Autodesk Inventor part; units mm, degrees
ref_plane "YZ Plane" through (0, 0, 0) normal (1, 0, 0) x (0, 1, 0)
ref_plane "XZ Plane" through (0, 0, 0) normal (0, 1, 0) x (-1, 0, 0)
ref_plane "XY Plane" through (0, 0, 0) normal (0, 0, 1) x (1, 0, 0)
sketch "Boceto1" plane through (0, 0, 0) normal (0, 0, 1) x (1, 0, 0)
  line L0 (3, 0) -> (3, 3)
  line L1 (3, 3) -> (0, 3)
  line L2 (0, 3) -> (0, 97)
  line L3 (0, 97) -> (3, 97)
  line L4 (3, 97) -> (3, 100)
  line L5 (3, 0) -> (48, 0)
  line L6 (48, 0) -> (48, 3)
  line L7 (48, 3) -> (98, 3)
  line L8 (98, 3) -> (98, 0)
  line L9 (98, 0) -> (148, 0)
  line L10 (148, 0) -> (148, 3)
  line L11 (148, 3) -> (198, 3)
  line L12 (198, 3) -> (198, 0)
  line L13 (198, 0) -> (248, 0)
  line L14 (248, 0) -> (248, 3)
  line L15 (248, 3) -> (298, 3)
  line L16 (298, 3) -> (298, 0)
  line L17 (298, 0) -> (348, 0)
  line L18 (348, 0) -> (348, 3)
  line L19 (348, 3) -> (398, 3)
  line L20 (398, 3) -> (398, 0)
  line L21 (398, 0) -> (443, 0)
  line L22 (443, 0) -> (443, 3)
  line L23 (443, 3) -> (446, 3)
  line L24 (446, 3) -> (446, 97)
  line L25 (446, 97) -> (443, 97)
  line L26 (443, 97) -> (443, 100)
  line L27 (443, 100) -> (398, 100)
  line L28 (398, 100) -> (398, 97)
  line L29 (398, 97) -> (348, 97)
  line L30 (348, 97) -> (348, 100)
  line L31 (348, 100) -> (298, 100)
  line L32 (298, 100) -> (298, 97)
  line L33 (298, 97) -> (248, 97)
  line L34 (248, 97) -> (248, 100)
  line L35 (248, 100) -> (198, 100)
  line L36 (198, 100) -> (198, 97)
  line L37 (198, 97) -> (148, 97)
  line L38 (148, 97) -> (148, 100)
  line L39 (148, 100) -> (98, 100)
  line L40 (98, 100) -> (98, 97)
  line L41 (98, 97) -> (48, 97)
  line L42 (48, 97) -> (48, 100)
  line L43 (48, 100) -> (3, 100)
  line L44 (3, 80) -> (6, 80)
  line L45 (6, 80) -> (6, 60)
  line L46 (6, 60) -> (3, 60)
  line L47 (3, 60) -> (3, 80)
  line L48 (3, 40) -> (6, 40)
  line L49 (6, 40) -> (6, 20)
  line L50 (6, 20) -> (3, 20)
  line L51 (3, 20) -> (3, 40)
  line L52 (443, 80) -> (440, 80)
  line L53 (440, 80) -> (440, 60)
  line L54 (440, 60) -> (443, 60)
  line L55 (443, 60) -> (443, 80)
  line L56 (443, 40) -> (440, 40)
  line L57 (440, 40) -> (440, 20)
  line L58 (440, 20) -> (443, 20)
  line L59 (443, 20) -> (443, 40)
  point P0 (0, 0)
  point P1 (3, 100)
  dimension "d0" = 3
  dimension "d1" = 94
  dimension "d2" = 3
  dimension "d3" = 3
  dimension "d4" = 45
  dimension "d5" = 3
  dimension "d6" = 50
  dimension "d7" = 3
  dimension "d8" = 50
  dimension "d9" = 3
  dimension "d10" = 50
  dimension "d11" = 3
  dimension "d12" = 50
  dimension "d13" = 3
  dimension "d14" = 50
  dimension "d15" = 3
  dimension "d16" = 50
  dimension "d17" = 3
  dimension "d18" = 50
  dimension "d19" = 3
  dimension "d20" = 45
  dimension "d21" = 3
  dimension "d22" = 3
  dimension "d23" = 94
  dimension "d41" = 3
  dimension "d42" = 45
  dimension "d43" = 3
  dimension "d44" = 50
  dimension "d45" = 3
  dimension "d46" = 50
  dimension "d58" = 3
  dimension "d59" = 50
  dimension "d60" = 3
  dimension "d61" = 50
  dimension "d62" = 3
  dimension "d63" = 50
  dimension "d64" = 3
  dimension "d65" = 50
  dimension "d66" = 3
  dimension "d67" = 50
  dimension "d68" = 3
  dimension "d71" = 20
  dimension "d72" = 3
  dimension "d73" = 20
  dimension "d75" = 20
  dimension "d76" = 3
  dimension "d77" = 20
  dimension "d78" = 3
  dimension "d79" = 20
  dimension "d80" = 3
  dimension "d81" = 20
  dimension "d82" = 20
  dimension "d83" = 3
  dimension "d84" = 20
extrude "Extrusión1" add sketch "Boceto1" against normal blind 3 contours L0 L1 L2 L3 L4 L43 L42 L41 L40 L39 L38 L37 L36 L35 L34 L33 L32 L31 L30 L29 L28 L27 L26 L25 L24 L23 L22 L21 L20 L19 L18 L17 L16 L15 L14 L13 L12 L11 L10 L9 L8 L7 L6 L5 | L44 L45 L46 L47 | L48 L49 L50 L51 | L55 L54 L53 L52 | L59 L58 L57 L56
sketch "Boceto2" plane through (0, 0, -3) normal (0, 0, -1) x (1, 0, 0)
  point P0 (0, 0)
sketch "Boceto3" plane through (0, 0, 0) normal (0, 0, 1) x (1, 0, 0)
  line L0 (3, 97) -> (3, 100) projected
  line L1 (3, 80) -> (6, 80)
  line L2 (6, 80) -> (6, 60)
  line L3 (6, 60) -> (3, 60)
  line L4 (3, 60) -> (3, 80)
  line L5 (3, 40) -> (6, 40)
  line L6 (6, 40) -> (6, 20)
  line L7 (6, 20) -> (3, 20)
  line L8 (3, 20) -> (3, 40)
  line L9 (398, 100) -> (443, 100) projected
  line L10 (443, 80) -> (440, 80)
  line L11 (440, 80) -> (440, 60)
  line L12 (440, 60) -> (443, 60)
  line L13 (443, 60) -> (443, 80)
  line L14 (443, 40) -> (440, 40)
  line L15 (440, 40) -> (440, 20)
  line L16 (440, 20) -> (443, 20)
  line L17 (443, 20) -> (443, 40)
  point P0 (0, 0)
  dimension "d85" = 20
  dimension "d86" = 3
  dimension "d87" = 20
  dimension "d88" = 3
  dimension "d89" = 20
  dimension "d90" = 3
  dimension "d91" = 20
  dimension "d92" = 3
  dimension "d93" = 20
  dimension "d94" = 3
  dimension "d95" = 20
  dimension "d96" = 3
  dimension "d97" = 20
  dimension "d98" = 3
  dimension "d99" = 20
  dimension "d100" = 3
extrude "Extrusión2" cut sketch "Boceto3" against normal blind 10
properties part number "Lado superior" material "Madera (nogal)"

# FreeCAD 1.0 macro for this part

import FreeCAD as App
import Part
import Sketcher
from FreeCAD import Vector

doc = App.newDocument("Part")
body = doc.addObject("PartDesign::Body", "Body")

sketch1 = body.newObject("Sketcher::SketchObject", "Sketch")
sketch1.AttachmentSupport = (doc.getObject("XY_Plane"), [""])
sketch1.MapMode = "FlatFace"
sketch1.addGeometry(Part.LineSegment(Vector(3, 3, 0), Vector(3, 0, 0)), False)
sketch1.addGeometry(Part.LineSegment(Vector(3, 0, 0), Vector(48, 0, 0)), False)
sketch1.addGeometry(Part.LineSegment(Vector(48, 0, 0), Vector(48, 3, 0)), False)
sketch1.addGeometry(Part.LineSegment(Vector(48, 3, 0), Vector(98, 3, 0)), False)
sketch1.addGeometry(Part.LineSegment(Vector(98, 3, 0), Vector(98, 0, 0)), False)
sketch1.addGeometry(Part.LineSegment(Vector(98, 0, 0), Vector(148, 0, 0)), False)
sketch1.addGeometry(Part.LineSegment(Vector(148, 0, 0), Vector(148, 3, 0)), False)
sketch1.addGeometry(Part.LineSegment(Vector(148, 3, 0), Vector(198, 3, 0)), False)
sketch1.addGeometry(Part.LineSegment(Vector(198, 3, 0), Vector(198, 0, 0)), False)
sketch1.addGeometry(Part.LineSegment(Vector(198, 0, 0), Vector(248, 0, 0)), False)
sketch1.addGeometry(Part.LineSegment(Vector(248, 0, 0), Vector(248, 3, 0)), False)
sketch1.addGeometry(Part.LineSegment(Vector(248, 3, 0), Vector(298, 3, 0)), False)
sketch1.addGeometry(Part.LineSegment(Vector(298, 3, 0), Vector(298, 0, 0)), False)
sketch1.addGeometry(Part.LineSegment(Vector(298, 0, 0), Vector(348, 0, 0)), False)
sketch1.addGeometry(Part.LineSegment(Vector(348, 0, 0), Vector(348, 3, 0)), False)
sketch1.addGeometry(Part.LineSegment(Vector(348, 3, 0), Vector(398, 3, 0)), False)
sketch1.addGeometry(Part.LineSegment(Vector(398, 3, 0), Vector(398, 0, 0)), False)
sketch1.addGeometry(Part.LineSegment(Vector(398, 0, 0), Vector(443, 0, 0)), False)
sketch1.addGeometry(Part.LineSegment(Vector(443, 0, 0), Vector(443, 3, 0)), False)
sketch1.addGeometry(Part.LineSegment(Vector(443, 3, 0), Vector(446, 3, 0)), False)
sketch1.addGeometry(Part.LineSegment(Vector(446, 3, 0), Vector(446, 97, 0)), False)
sketch1.addGeometry(Part.LineSegment(Vector(446, 97, 0), Vector(443, 97, 0)), False)
sketch1.addGeometry(Part.LineSegment(Vector(443, 97, 0), Vector(443, 100, 0)), False)
sketch1.addGeometry(Part.LineSegment(Vector(443, 100, 0), Vector(398, 100, 0)), False)
sketch1.addGeometry(Part.LineSegment(Vector(398, 100, 0), Vector(398, 97, 0)), False)
sketch1.addGeometry(Part.LineSegment(Vector(398, 97, 0), Vector(348, 97, 0)), False)
sketch1.addGeometry(Part.LineSegment(Vector(348, 97, 0), Vector(348, 100, 0)), False)
sketch1.addGeometry(Part.LineSegment(Vector(348, 100, 0), Vector(298, 100, 0)), False)
sketch1.addGeometry(Part.LineSegment(Vector(298, 100, 0), Vector(298, 97, 0)), False)
sketch1.addGeometry(Part.LineSegment(Vector(298, 97, 0), Vector(248, 97, 0)), False)
sketch1.addGeometry(Part.LineSegment(Vector(248, 97, 0), Vector(248, 100, 0)), False)
sketch1.addGeometry(Part.LineSegment(Vector(248, 100, 0), Vector(198, 100, 0)), False)
sketch1.addGeometry(Part.LineSegment(Vector(198, 100, 0), Vector(198, 97, 0)), False)
sketch1.addGeometry(Part.LineSegment(Vector(198, 97, 0), Vector(148, 97, 0)), False)
sketch1.addGeometry(Part.LineSegment(Vector(148, 97, 0), Vector(148, 100, 0)), False)
sketch1.addGeometry(Part.LineSegment(Vector(148, 100, 0), Vector(98, 100, 0)), False)
sketch1.addGeometry(Part.LineSegment(Vector(98, 100, 0), Vector(98, 97, 0)), False)
sketch1.addGeometry(Part.LineSegment(Vector(98, 97, 0), Vector(48, 97, 0)), False)
sketch1.addGeometry(Part.LineSegment(Vector(48, 97, 0), Vector(48, 100, 0)), False)
sketch1.addGeometry(Part.LineSegment(Vector(48, 100, 0), Vector(3, 100, 0)), False)
sketch1.addGeometry(Part.LineSegment(Vector(3, 100, 0), Vector(3, 97, 0)), False)
sketch1.addGeometry(Part.LineSegment(Vector(3, 97, 0), Vector(0, 97, 0)), False)
sketch1.addGeometry(Part.LineSegment(Vector(0, 97, 0), Vector(0, 3, 0)), False)
sketch1.addGeometry(Part.LineSegment(Vector(0, 3, 0), Vector(3, 3, 0)), False)
sketch1.addConstraint(Sketcher.Constraint("Coincident", 0, 2, 1, 1))
sketch1.addConstraint(Sketcher.Constraint("Coincident", 1, 2, 2, 1))
sketch1.addConstraint(Sketcher.Constraint("Coincident", 2, 2, 3, 1))
sketch1.addConstraint(Sketcher.Constraint("Coincident", 3, 2, 4, 1))
sketch1.addConstraint(Sketcher.Constraint("Coincident", 4, 2, 5, 1))
sketch1.addConstraint(Sketcher.Constraint("Coincident", 5, 2, 6, 1))
sketch1.addConstraint(Sketcher.Constraint("Coincident", 6, 2, 7, 1))
sketch1.addConstraint(Sketcher.Constraint("Coincident", 7, 2, 8, 1))
sketch1.addConstraint(Sketcher.Constraint("Coincident", 8, 2, 9, 1))
sketch1.addConstraint(Sketcher.Constraint("Coincident", 9, 2, 10, 1))
sketch1.addConstraint(Sketcher.Constraint("Coincident", 10, 2, 11, 1))
sketch1.addConstraint(Sketcher.Constraint("Coincident", 11, 2, 12, 1))
sketch1.addConstraint(Sketcher.Constraint("Coincident", 12, 2, 13, 1))
sketch1.addConstraint(Sketcher.Constraint("Coincident", 13, 2, 14, 1))
sketch1.addConstraint(Sketcher.Constraint("Coincident", 14, 2, 15, 1))
sketch1.addConstraint(Sketcher.Constraint("Coincident", 15, 2, 16, 1))
sketch1.addConstraint(Sketcher.Constraint("Coincident", 16, 2, 17, 1))
sketch1.addConstraint(Sketcher.Constraint("Coincident", 17, 2, 18, 1))
sketch1.addConstraint(Sketcher.Constraint("Coincident", 18, 2, 19, 1))
sketch1.addConstraint(Sketcher.Constraint("Coincident", 19, 2, 20, 1))
sketch1.addConstraint(Sketcher.Constraint("Coincident", 20, 2, 21, 1))
sketch1.addConstraint(Sketcher.Constraint("Coincident", 21, 2, 22, 1))
sketch1.addConstraint(Sketcher.Constraint("Coincident", 22, 2, 23, 1))
sketch1.addConstraint(Sketcher.Constraint("Coincident", 23, 2, 24, 1))
sketch1.addConstraint(Sketcher.Constraint("Coincident", 24, 2, 25, 1))
sketch1.addConstraint(Sketcher.Constraint("Coincident", 25, 2, 26, 1))
sketch1.addConstraint(Sketcher.Constraint("Coincident", 26, 2, 27, 1))
sketch1.addConstraint(Sketcher.Constraint("Coincident", 27, 2, 28, 1))
sketch1.addConstraint(Sketcher.Constraint("Coincident", 28, 2, 29, 1))
sketch1.addConstraint(Sketcher.Constraint("Coincident", 29, 2, 30, 1))
sketch1.addConstraint(Sketcher.Constraint("Coincident", 30, 2, 31, 1))
sketch1.addConstraint(Sketcher.Constraint("Coincident", 31, 2, 32, 1))
sketch1.addConstraint(Sketcher.Constraint("Coincident", 32, 2, 33, 1))
sketch1.addConstraint(Sketcher.Constraint("Coincident", 33, 2, 34, 1))
sketch1.addConstraint(Sketcher.Constraint("Coincident", 34, 2, 35, 1))
sketch1.addConstraint(Sketcher.Constraint("Coincident", 35, 2, 36, 1))
sketch1.addConstraint(Sketcher.Constraint("Coincident", 36, 2, 37, 1))
sketch1.addConstraint(Sketcher.Constraint("Coincident", 37, 2, 38, 1))
sketch1.addConstraint(Sketcher.Constraint("Coincident", 38, 2, 39, 1))
sketch1.addConstraint(Sketcher.Constraint("Coincident", 39, 2, 40, 1))
sketch1.addConstraint(Sketcher.Constraint("Coincident", 40, 2, 41, 1))
sketch1.addConstraint(Sketcher.Constraint("Coincident", 41, 2, 42, 1))
sketch1.addConstraint(Sketcher.Constraint("Coincident", 42, 2, 43, 1))
sketch1.addConstraint(Sketcher.Constraint("Coincident", 43, 2, 0, 1))
sketch1.addConstraint(Sketcher.Constraint("Vertical", 0))
sketch1.addConstraint(Sketcher.Constraint("Horizontal", 1))
sketch1.addConstraint(Sketcher.Constraint("Vertical", 2))
sketch1.addConstraint(Sketcher.Constraint("Horizontal", 3))
sketch1.addConstraint(Sketcher.Constraint("Vertical", 4))
sketch1.addConstraint(Sketcher.Constraint("Horizontal", 5))
sketch1.addConstraint(Sketcher.Constraint("Vertical", 6))
sketch1.addConstraint(Sketcher.Constraint("Horizontal", 7))
sketch1.addConstraint(Sketcher.Constraint("Vertical", 8))
sketch1.addConstraint(Sketcher.Constraint("Horizontal", 9))
sketch1.addConstraint(Sketcher.Constraint("Vertical", 10))
sketch1.addConstraint(Sketcher.Constraint("Horizontal", 11))
sketch1.addConstraint(Sketcher.Constraint("Vertical", 12))
sketch1.addConstraint(Sketcher.Constraint("Horizontal", 13))
sketch1.addConstraint(Sketcher.Constraint("Vertical", 14))
sketch1.addConstraint(Sketcher.Constraint("Horizontal", 15))
sketch1.addConstraint(Sketcher.Constraint("Vertical", 16))
sketch1.addConstraint(Sketcher.Constraint("Horizontal", 17))
sketch1.addConstraint(Sketcher.Constraint("Vertical", 18))
sketch1.addConstraint(Sketcher.Constraint("Horizontal", 19))
sketch1.addConstraint(Sketcher.Constraint("Vertical", 20))
sketch1.addConstraint(Sketcher.Constraint("Horizontal", 21))
sketch1.addConstraint(Sketcher.Constraint("Vertical", 22))
sketch1.addConstraint(Sketcher.Constraint("Horizontal", 23))
sketch1.addConstraint(Sketcher.Constraint("Vertical", 24))
sketch1.addConstraint(Sketcher.Constraint("Horizontal", 25))
sketch1.addConstraint(Sketcher.Constraint("Vertical", 26))
sketch1.addConstraint(Sketcher.Constraint("Horizontal", 27))
sketch1.addConstraint(Sketcher.Constraint("Vertical", 28))
sketch1.addConstraint(Sketcher.Constraint("Horizontal", 29))
sketch1.addConstraint(Sketcher.Constraint("Vertical", 30))
sketch1.addConstraint(Sketcher.Constraint("Horizontal", 31))
sketch1.addConstraint(Sketcher.Constraint("Vertical", 32))
sketch1.addConstraint(Sketcher.Constraint("Horizontal", 33))
sketch1.addConstraint(Sketcher.Constraint("Vertical", 34))
sketch1.addConstraint(Sketcher.Constraint("Horizontal", 35))
sketch1.addConstraint(Sketcher.Constraint("Vertical", 36))
sketch1.addConstraint(Sketcher.Constraint("Horizontal", 37))
sketch1.addConstraint(Sketcher.Constraint("Vertical", 38))
sketch1.addConstraint(Sketcher.Constraint("Horizontal", 39))
sketch1.addConstraint(Sketcher.Constraint("Vertical", 40))
sketch1.addConstraint(Sketcher.Constraint("Horizontal", 41))
sketch1.addConstraint(Sketcher.Constraint("Vertical", 42))
sketch1.addConstraint(Sketcher.Constraint("Horizontal", 43))
sketch1.addConstraint(Sketcher.Constraint("PointOnObject", 0, 2, -1))
sketch1.addConstraint(Sketcher.Constraint("PointOnObject", 4, 2, -1))
sketch1.addConstraint(Sketcher.Constraint("PointOnObject", 8, 2, -1))
sketch1.addConstraint(Sketcher.Constraint("PointOnObject", 12, 2, -1))
sketch1.addConstraint(Sketcher.Constraint("PointOnObject", 16, 2, -1))
sketch1.addConstraint(Sketcher.Constraint("PointOnObject", 41, 2, -2))
sketch1.addConstraint(Sketcher.Constraint("Horizontal", 3, 2, 6, 2))
sketch1.addConstraint(Sketcher.Constraint("Horizontal", 7, 2, 10, 2))
sketch1.addConstraint(Sketcher.Constraint("Horizontal", 11, 2, 14, 2))
sketch1.addConstraint(Sketcher.Constraint("Horizontal", 15, 2, 18, 2))
sketch1.addConstraint(Sketcher.Constraint("Horizontal", 21, 2, 24, 2))
sketch1.addConstraint(Sketcher.Constraint("Horizontal", 23, 2, 26, 2))
sketch1.addConstraint(Sketcher.Constraint("Horizontal", 25, 2, 28, 2))
sketch1.addConstraint(Sketcher.Constraint("Horizontal", 27, 2, 30, 2))
sketch1.addConstraint(Sketcher.Constraint("Horizontal", 29, 2, 32, 2))
sketch1.addConstraint(Sketcher.Constraint("Horizontal", 31, 2, 34, 2))
sketch1.addConstraint(Sketcher.Constraint("Horizontal", 33, 2, 36, 2))
sketch1.addConstraint(Sketcher.Constraint("Horizontal", 35, 2, 38, 2))
sketch1.addConstraint(Sketcher.Constraint("Horizontal", 37, 2, 40, 2))
sketch1.addConstraint(Sketcher.Constraint("Horizontal", 19, 2, 42, 2))
sketch1.addConstraint(Sketcher.Constraint("Vertical", 18, 2, 21, 2))
sketch1.addConstraint(Sketcher.Constraint("Vertical", 16, 2, 23, 2))
sketch1.addConstraint(Sketcher.Constraint("Vertical", 14, 2, 25, 2))
sketch1.addConstraint(Sketcher.Constraint("Vertical", 12, 2, 27, 2))
sketch1.addConstraint(Sketcher.Constraint("Vertical", 10, 2, 29, 2))
sketch1.addConstraint(Sketcher.Constraint("Vertical", 8, 2, 31, 2))
sketch1.addConstraint(Sketcher.Constraint("Vertical", 6, 2, 33, 2))
sketch1.addConstraint(Sketcher.Constraint("Vertical", 4, 2, 35, 2))
sketch1.addConstraint(Sketcher.Constraint("Vertical", 2, 2, 37, 2))
sketch1.addConstraint(Sketcher.Constraint("Vertical", 0, 2, 39, 2))
sketch1.addConstraint(Sketcher.Constraint("Equal", 3, 5))
sketch1.addConstraint(Sketcher.Constraint("Equal", 5, 7))
sketch1.addConstraint(Sketcher.Constraint("Equal", 7, 9))
sketch1.addConstraint(Sketcher.Constraint("Equal", 9, 11))
sketch1.addConstraint(Sketcher.Constraint("Equal", 11, 13))
sketch1.addConstraint(Sketcher.Constraint("Equal", 13, 15))
sketch1.addConstraint(Sketcher.Constraint("Equal", 1, 17))
sketch1.addConstraint(Sketcher.Constraint("Equal", 21, 41))
sketch1.addConstraint(Sketcher.Constraint("Equal", 43, 0))
sketch1.addConstraint(Sketcher.Constraint("Equal", 18, 22))
sketch1.addConstraint(Sketcher.Constraint("DistanceX", 1, 1, 1, 2, 45.0))
sketch1.addConstraint(Sketcher.Constraint("DistanceX", 3, 1, 3, 2, 50.0))
sketch1.addConstraint(Sketcher.Constraint("DistanceX", 19, 1, 19, 2, 3.0))
sketch1.addConstraint(Sketcher.Constraint("DistanceY", 20, 1, 20, 2, 94.0))
pad1 = body.newObject("PartDesign::Pad", "Pad")
pad1.Profile = sketch1
pad1.Length = 3
pad1.Reversed = True

sketch2 = body.newObject("Sketcher::SketchObject", "Sketch001")
sketch2.AttachmentSupport = (doc.getObject("XY_Plane"), [""])
sketch2.MapMode = "FlatFace"
sketch2.addGeometry(Part.LineSegment(Vector(6, 80, 0), Vector(3, 80, 0)), False)
sketch2.addGeometry(Part.LineSegment(Vector(3, 80, 0), Vector(3, 60, 0)), False)
sketch2.addGeometry(Part.LineSegment(Vector(3, 60, 0), Vector(6, 60, 0)), False)
sketch2.addGeometry(Part.LineSegment(Vector(6, 60, 0), Vector(6, 80, 0)), False)
sketch2.addGeometry(Part.LineSegment(Vector(6, 40, 0), Vector(3, 40, 0)), False)
sketch2.addGeometry(Part.LineSegment(Vector(3, 40, 0), Vector(3, 20, 0)), False)
sketch2.addGeometry(Part.LineSegment(Vector(3, 20, 0), Vector(6, 20, 0)), False)
sketch2.addGeometry(Part.LineSegment(Vector(6, 20, 0), Vector(6, 40, 0)), False)
sketch2.addGeometry(Part.LineSegment(Vector(443, 60, 0), Vector(443, 80, 0)), False)
sketch2.addGeometry(Part.LineSegment(Vector(443, 80, 0), Vector(440, 80, 0)), False)
sketch2.addGeometry(Part.LineSegment(Vector(440, 80, 0), Vector(440, 60, 0)), False)
sketch2.addGeometry(Part.LineSegment(Vector(440, 60, 0), Vector(443, 60, 0)), False)
sketch2.addGeometry(Part.LineSegment(Vector(443, 20, 0), Vector(443, 40, 0)), False)
sketch2.addGeometry(Part.LineSegment(Vector(443, 40, 0), Vector(440, 40, 0)), False)
sketch2.addGeometry(Part.LineSegment(Vector(440, 40, 0), Vector(440, 20, 0)), False)
sketch2.addGeometry(Part.LineSegment(Vector(440, 20, 0), Vector(443, 20, 0)), False)
sketch2.addConstraint(Sketcher.Constraint("Coincident", 0, 2, 1, 1))
sketch2.addConstraint(Sketcher.Constraint("Coincident", 1, 2, 2, 1))
sketch2.addConstraint(Sketcher.Constraint("Coincident", 2, 2, 3, 1))
sketch2.addConstraint(Sketcher.Constraint("Coincident", 3, 2, 0, 1))
sketch2.addConstraint(Sketcher.Constraint("Coincident", 4, 2, 5, 1))
sketch2.addConstraint(Sketcher.Constraint("Coincident", 5, 2, 6, 1))
sketch2.addConstraint(Sketcher.Constraint("Coincident", 6, 2, 7, 1))
sketch2.addConstraint(Sketcher.Constraint("Coincident", 7, 2, 4, 1))
sketch2.addConstraint(Sketcher.Constraint("Coincident", 8, 2, 9, 1))
sketch2.addConstraint(Sketcher.Constraint("Coincident", 9, 2, 10, 1))
sketch2.addConstraint(Sketcher.Constraint("Coincident", 10, 2, 11, 1))
sketch2.addConstraint(Sketcher.Constraint("Coincident", 11, 2, 8, 1))
sketch2.addConstraint(Sketcher.Constraint("Coincident", 12, 2, 13, 1))
sketch2.addConstraint(Sketcher.Constraint("Coincident", 13, 2, 14, 1))
sketch2.addConstraint(Sketcher.Constraint("Coincident", 14, 2, 15, 1))
sketch2.addConstraint(Sketcher.Constraint("Coincident", 15, 2, 12, 1))
sketch2.addConstraint(Sketcher.Constraint("Horizontal", 0))
sketch2.addConstraint(Sketcher.Constraint("Vertical", 1))
sketch2.addConstraint(Sketcher.Constraint("Horizontal", 2))
sketch2.addConstraint(Sketcher.Constraint("Vertical", 3))
sketch2.addConstraint(Sketcher.Constraint("Horizontal", 4))
sketch2.addConstraint(Sketcher.Constraint("Vertical", 5))
sketch2.addConstraint(Sketcher.Constraint("Horizontal", 6))
sketch2.addConstraint(Sketcher.Constraint("Vertical", 7))
sketch2.addConstraint(Sketcher.Constraint("Vertical", 8))
sketch2.addConstraint(Sketcher.Constraint("Horizontal", 9))
sketch2.addConstraint(Sketcher.Constraint("Vertical", 10))
sketch2.addConstraint(Sketcher.Constraint("Horizontal", 11))
sketch2.addConstraint(Sketcher.Constraint("Vertical", 12))
sketch2.addConstraint(Sketcher.Constraint("Horizontal", 13))
sketch2.addConstraint(Sketcher.Constraint("Vertical", 14))
sketch2.addConstraint(Sketcher.Constraint("Horizontal", 15))
sketch2.addConstraint(Sketcher.Constraint("Horizontal", 3, 2, 8, 2))
sketch2.addConstraint(Sketcher.Constraint("Horizontal", 2, 2, 10, 2))
sketch2.addConstraint(Sketcher.Constraint("Horizontal", 7, 2, 12, 2))
sketch2.addConstraint(Sketcher.Constraint("Horizontal", 6, 2, 14, 2))
sketch2.addConstraint(Sketcher.Constraint("Vertical", 1, 2, 4, 2))
sketch2.addConstraint(Sketcher.Constraint("Vertical", 3, 2, 6, 2))
sketch2.addConstraint(Sketcher.Constraint("Vertical", 11, 2, 12, 2))
sketch2.addConstraint(Sketcher.Constraint("Vertical", 10, 2, 13, 2))
sketch2.addConstraint(Sketcher.Constraint("Equal", 6, 9))
sketch2.addConstraint(Sketcher.Constraint("Equal", 3, 5))
sketch2.addConstraint(Sketcher.Constraint("DistanceX", 0, 2, 0, 1, 3.0))
sketch2.addConstraint(Sketcher.Constraint("DistanceY", 1, 2, 1, 1, 20.0))
sketch2.addConstraint(Sketcher.Constraint("DistanceX", -1, 1, 0, 2, 3.0))
sketch2.addConstraint(Sketcher.Constraint("DistanceY", -1, 1, 5, 2, 20.0))
sketch2.addConstraint(Sketcher.Constraint("DistanceY", 4, 2, 1, 2, 20.0))
sketch2.addConstraint(Sketcher.Constraint("DistanceX", -1, 1, 8, 2, 443.0))
pocket1 = body.newObject("PartDesign::Pocket", "Pocket")
pocket1.Profile = sketch2
pocket1.Length = 10

doc.recompute()
